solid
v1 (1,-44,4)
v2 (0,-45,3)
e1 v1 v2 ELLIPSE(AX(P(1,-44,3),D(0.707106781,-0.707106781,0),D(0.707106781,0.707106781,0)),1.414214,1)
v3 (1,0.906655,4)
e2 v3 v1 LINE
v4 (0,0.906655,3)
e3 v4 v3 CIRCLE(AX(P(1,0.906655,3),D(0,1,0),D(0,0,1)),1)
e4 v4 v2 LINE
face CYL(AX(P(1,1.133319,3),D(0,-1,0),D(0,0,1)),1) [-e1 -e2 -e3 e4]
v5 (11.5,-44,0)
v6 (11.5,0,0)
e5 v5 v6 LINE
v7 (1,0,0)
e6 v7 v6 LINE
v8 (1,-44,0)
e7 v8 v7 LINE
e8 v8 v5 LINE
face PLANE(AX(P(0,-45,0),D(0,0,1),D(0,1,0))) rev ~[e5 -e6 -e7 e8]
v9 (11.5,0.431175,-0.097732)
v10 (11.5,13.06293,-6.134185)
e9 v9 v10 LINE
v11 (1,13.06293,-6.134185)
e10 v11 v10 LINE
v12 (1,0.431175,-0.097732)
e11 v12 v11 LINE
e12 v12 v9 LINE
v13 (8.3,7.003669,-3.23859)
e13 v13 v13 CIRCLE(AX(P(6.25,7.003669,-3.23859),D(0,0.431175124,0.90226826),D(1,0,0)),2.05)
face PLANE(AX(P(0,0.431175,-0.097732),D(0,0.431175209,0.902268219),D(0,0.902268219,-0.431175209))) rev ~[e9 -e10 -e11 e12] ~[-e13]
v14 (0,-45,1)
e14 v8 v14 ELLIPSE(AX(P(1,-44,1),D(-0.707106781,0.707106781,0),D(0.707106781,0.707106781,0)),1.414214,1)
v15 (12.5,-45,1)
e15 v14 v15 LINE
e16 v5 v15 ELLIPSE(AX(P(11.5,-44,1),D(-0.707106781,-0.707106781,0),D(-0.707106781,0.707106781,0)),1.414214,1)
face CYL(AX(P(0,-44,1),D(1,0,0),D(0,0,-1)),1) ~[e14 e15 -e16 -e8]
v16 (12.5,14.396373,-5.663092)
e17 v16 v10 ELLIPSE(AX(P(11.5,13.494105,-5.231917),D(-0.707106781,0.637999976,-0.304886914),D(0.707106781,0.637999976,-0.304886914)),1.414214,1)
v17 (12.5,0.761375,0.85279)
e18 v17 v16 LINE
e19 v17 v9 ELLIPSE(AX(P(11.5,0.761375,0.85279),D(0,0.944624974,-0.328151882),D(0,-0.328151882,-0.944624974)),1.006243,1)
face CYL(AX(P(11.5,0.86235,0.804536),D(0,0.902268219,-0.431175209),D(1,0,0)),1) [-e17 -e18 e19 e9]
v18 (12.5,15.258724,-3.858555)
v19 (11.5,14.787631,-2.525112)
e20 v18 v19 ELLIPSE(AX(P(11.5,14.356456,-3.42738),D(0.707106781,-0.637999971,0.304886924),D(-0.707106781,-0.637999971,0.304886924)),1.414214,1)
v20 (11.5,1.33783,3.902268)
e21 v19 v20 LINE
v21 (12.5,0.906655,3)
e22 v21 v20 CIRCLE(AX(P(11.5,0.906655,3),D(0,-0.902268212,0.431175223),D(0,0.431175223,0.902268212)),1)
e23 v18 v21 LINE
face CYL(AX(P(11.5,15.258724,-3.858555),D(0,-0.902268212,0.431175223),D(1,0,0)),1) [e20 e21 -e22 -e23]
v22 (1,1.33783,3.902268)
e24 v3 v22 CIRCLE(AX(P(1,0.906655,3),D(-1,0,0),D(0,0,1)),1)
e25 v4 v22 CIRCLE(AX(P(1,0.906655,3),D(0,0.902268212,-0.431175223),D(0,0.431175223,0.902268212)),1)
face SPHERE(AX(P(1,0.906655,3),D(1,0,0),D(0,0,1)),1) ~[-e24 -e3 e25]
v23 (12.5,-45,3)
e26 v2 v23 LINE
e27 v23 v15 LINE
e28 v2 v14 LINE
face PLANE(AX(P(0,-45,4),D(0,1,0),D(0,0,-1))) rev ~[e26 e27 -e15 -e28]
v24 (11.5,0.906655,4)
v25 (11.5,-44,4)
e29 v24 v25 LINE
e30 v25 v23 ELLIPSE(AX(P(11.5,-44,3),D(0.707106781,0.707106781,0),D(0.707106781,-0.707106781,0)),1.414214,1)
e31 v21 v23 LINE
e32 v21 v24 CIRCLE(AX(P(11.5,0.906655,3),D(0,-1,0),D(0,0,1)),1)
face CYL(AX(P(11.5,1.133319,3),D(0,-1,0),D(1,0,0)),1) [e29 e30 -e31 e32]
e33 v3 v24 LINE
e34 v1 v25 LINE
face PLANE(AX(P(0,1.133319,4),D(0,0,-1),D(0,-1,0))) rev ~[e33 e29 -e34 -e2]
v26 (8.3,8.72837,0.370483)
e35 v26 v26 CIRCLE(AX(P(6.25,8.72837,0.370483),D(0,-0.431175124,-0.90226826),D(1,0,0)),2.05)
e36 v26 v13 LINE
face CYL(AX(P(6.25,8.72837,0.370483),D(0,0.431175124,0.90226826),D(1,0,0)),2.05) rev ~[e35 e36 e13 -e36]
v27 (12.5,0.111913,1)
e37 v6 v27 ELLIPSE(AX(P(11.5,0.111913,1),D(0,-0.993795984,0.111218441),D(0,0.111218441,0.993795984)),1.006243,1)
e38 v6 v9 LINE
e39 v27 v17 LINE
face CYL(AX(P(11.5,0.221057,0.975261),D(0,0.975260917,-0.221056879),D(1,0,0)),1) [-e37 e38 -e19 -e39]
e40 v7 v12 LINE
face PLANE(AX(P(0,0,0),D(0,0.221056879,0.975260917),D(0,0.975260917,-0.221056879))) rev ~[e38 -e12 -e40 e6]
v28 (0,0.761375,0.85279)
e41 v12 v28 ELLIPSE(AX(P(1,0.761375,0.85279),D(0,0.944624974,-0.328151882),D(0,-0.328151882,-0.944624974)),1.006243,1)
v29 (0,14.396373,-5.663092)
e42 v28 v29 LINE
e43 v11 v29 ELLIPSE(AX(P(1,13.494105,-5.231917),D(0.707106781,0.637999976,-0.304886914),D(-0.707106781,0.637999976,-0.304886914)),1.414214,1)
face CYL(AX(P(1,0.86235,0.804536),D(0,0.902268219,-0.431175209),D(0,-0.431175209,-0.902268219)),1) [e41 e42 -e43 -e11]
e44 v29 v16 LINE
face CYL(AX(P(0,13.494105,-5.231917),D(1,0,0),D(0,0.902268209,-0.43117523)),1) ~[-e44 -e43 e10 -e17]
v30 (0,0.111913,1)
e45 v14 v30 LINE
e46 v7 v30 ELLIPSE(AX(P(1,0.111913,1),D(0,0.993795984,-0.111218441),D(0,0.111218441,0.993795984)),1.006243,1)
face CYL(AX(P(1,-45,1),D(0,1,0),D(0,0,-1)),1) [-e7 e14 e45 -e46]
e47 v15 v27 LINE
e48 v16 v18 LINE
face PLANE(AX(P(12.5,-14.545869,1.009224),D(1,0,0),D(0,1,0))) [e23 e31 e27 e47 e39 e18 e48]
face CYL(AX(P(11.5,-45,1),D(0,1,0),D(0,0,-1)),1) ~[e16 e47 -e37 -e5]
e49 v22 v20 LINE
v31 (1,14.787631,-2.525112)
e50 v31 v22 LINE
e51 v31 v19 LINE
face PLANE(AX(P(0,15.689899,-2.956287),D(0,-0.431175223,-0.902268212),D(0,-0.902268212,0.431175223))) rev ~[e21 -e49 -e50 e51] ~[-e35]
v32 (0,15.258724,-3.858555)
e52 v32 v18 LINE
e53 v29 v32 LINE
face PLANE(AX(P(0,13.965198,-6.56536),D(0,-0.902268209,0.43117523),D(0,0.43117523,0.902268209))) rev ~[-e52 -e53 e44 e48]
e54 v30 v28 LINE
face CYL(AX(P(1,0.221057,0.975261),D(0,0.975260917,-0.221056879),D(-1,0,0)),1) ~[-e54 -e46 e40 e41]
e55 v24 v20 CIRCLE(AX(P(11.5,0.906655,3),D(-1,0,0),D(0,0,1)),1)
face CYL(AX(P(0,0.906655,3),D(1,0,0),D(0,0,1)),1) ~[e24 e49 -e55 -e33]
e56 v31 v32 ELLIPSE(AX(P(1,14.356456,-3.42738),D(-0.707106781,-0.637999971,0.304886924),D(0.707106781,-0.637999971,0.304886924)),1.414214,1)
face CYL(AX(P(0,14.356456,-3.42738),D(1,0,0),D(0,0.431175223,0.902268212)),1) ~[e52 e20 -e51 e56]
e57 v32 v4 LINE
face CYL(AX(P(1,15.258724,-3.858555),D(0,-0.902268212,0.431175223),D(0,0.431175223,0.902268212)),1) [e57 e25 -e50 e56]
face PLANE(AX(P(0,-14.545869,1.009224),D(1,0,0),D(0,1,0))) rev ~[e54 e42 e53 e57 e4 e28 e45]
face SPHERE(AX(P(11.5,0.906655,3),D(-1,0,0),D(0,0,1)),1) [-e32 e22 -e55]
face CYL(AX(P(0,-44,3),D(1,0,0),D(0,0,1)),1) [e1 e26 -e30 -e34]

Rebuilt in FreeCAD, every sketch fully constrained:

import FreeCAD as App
import Part
import Sketcher

V = App.Vector
Q = App.Units.Quantity


def edges_at(feature, points):
    """Names of the edges that pass closest to the given points."""
    edges = feature.Shape.Edges
    near = lambda p: min(range(len(edges)), key=lambda i: edges[i].distToShape(Part.Vertex(*p))[0])
    return sorted({f"Edge{near(p) + 1}" for p in points})

doc = App.newDocument("Part")
body = doc.addObject("PartDesign::Body", "Body")

sketch1 = body.newObject("Sketcher::SketchObject", "Sketch")
sketch1.AttachmentSupport = (doc.getObject("YZ_Plane"), [""])
sketch1.MapMode = "FlatFace"
sketch1.addGeometry([
    Part.LineSegment(V(-45, 0, 0), V(0, 0, 0)),
    Part.LineSegment(V(0, 0, 0), V(0.43, -0.1, 0)),
    Part.LineSegment(V(0.43, -0.1, 0), V(13.97, -6.57, 0)),
    Part.LineSegment(V(13.97, -6.57, 0), V(15.69, -2.96, 0)),
    Part.LineSegment(V(15.69, -2.96, 0), V(1.13, 4, 0)),
    Part.LineSegment(V(1.13, 4, 0), V(-45, 4, 0)),
    Part.LineSegment(V(-45, 4, 0), V(-45, 0, 0)),
], False)
sketch1.addConstraint([
    Sketcher.Constraint("Coincident", 0, 2, 1, 1),
    Sketcher.Constraint("Coincident", 1, 2, 2, 1),
    Sketcher.Constraint("Coincident", 2, 2, 3, 1),
    Sketcher.Constraint("Coincident", 3, 2, 4, 1),
    Sketcher.Constraint("Coincident", 4, 2, 5, 1),
    Sketcher.Constraint("Coincident", 5, 2, 6, 1),
    Sketcher.Constraint("Coincident", 6, 2, 0, 1),
    Sketcher.Constraint("Horizontal", 0),
    Sketcher.Constraint("Horizontal", 5),
    Sketcher.Constraint("Vertical", 6),
    Sketcher.Constraint("Coincident", 0, 2, -1, 1),
    Sketcher.Constraint("Perpendicular", 2, 3),
    Sketcher.Constraint("Perpendicular", 3, 4),
    Sketcher.Constraint("DistanceX", 0, 1, 0, 2, Q("45 mm")),
    Sketcher.Constraint("DistanceY", 6, 2, 6, 1, Q("4 mm")),
    Sketcher.Constraint("Distance", 2, Q("15 mm")),
    Sketcher.Constraint("Distance", 3, Q("4 mm")),
    Sketcher.Constraint("DistanceX", 5, 2, 5, 1, Q("46.133319 mm")),
    Sketcher.Constraint("DistanceX", -1, 1, 3, 2, Q("15.689899 mm")),
    Sketcher.Constraint("DistanceX", 2, 2, 3, 2, Q("1.724701 mm")),
])
pad1 = body.newObject("PartDesign::Pad", "Pad")
pad1.Profile = sketch1
pad1.Length = 12.5

sketch2 = body.newObject("Sketcher::SketchObject", "Sketch001")
sketch2.Placement = App.Placement(V(0, 1.76684, 3.697253), App.Rotation(V(1, 0, 0), V(0, 0.90226826, -0.431175124), V(0, 0.431175124, 0.90226826), "ZXY"))
sketch2.addGeometry(Part.Circle(V(6.2, 7.7, 0), V(0, 0, 1), 2), False)
sketch2.addConstraint([
    Sketcher.Constraint("Diameter", 0, Q("4.1 mm")),
    Sketcher.Constraint("DistanceX", -1, 1, 0, 3, Q("6.25 mm")),
    Sketcher.Constraint("DistanceY", -1, 1, 0, 3, Q("7.715588 mm")),
])
pocket1 = body.newObject("PartDesign::Pocket", "Pocket")
pocket1.Profile = sketch2
pocket1.Length = 25
doc.recompute()

fillet = body.newObject("PartDesign::Fillet", "Fillet")
fillet.Base = (pocket1, edges_at(pocket1, [
    (6.25, 1.133, 4),
    (6.25, -45, 4),
    (0, -21.933, 4),
    (12.5, -21.933, 4),
    (12.5, 8.412, 0.522),
    (6.25, 15.69, -2.956),
    (0, 8.412, 0.522),
    (12.5, -22.5, 0),
    (0, -22.5, 0),
    (6.25, -45, 0),
    (12.5, 7.198, -3.332),
    (0, 7.198, -3.332),
    (6.25, 13.965, -6.565),
    (12.5, 0.216, -0.049),
    (0, 0.216, -0.049),
]))
fillet.Radius = 1

doc.recompute()
